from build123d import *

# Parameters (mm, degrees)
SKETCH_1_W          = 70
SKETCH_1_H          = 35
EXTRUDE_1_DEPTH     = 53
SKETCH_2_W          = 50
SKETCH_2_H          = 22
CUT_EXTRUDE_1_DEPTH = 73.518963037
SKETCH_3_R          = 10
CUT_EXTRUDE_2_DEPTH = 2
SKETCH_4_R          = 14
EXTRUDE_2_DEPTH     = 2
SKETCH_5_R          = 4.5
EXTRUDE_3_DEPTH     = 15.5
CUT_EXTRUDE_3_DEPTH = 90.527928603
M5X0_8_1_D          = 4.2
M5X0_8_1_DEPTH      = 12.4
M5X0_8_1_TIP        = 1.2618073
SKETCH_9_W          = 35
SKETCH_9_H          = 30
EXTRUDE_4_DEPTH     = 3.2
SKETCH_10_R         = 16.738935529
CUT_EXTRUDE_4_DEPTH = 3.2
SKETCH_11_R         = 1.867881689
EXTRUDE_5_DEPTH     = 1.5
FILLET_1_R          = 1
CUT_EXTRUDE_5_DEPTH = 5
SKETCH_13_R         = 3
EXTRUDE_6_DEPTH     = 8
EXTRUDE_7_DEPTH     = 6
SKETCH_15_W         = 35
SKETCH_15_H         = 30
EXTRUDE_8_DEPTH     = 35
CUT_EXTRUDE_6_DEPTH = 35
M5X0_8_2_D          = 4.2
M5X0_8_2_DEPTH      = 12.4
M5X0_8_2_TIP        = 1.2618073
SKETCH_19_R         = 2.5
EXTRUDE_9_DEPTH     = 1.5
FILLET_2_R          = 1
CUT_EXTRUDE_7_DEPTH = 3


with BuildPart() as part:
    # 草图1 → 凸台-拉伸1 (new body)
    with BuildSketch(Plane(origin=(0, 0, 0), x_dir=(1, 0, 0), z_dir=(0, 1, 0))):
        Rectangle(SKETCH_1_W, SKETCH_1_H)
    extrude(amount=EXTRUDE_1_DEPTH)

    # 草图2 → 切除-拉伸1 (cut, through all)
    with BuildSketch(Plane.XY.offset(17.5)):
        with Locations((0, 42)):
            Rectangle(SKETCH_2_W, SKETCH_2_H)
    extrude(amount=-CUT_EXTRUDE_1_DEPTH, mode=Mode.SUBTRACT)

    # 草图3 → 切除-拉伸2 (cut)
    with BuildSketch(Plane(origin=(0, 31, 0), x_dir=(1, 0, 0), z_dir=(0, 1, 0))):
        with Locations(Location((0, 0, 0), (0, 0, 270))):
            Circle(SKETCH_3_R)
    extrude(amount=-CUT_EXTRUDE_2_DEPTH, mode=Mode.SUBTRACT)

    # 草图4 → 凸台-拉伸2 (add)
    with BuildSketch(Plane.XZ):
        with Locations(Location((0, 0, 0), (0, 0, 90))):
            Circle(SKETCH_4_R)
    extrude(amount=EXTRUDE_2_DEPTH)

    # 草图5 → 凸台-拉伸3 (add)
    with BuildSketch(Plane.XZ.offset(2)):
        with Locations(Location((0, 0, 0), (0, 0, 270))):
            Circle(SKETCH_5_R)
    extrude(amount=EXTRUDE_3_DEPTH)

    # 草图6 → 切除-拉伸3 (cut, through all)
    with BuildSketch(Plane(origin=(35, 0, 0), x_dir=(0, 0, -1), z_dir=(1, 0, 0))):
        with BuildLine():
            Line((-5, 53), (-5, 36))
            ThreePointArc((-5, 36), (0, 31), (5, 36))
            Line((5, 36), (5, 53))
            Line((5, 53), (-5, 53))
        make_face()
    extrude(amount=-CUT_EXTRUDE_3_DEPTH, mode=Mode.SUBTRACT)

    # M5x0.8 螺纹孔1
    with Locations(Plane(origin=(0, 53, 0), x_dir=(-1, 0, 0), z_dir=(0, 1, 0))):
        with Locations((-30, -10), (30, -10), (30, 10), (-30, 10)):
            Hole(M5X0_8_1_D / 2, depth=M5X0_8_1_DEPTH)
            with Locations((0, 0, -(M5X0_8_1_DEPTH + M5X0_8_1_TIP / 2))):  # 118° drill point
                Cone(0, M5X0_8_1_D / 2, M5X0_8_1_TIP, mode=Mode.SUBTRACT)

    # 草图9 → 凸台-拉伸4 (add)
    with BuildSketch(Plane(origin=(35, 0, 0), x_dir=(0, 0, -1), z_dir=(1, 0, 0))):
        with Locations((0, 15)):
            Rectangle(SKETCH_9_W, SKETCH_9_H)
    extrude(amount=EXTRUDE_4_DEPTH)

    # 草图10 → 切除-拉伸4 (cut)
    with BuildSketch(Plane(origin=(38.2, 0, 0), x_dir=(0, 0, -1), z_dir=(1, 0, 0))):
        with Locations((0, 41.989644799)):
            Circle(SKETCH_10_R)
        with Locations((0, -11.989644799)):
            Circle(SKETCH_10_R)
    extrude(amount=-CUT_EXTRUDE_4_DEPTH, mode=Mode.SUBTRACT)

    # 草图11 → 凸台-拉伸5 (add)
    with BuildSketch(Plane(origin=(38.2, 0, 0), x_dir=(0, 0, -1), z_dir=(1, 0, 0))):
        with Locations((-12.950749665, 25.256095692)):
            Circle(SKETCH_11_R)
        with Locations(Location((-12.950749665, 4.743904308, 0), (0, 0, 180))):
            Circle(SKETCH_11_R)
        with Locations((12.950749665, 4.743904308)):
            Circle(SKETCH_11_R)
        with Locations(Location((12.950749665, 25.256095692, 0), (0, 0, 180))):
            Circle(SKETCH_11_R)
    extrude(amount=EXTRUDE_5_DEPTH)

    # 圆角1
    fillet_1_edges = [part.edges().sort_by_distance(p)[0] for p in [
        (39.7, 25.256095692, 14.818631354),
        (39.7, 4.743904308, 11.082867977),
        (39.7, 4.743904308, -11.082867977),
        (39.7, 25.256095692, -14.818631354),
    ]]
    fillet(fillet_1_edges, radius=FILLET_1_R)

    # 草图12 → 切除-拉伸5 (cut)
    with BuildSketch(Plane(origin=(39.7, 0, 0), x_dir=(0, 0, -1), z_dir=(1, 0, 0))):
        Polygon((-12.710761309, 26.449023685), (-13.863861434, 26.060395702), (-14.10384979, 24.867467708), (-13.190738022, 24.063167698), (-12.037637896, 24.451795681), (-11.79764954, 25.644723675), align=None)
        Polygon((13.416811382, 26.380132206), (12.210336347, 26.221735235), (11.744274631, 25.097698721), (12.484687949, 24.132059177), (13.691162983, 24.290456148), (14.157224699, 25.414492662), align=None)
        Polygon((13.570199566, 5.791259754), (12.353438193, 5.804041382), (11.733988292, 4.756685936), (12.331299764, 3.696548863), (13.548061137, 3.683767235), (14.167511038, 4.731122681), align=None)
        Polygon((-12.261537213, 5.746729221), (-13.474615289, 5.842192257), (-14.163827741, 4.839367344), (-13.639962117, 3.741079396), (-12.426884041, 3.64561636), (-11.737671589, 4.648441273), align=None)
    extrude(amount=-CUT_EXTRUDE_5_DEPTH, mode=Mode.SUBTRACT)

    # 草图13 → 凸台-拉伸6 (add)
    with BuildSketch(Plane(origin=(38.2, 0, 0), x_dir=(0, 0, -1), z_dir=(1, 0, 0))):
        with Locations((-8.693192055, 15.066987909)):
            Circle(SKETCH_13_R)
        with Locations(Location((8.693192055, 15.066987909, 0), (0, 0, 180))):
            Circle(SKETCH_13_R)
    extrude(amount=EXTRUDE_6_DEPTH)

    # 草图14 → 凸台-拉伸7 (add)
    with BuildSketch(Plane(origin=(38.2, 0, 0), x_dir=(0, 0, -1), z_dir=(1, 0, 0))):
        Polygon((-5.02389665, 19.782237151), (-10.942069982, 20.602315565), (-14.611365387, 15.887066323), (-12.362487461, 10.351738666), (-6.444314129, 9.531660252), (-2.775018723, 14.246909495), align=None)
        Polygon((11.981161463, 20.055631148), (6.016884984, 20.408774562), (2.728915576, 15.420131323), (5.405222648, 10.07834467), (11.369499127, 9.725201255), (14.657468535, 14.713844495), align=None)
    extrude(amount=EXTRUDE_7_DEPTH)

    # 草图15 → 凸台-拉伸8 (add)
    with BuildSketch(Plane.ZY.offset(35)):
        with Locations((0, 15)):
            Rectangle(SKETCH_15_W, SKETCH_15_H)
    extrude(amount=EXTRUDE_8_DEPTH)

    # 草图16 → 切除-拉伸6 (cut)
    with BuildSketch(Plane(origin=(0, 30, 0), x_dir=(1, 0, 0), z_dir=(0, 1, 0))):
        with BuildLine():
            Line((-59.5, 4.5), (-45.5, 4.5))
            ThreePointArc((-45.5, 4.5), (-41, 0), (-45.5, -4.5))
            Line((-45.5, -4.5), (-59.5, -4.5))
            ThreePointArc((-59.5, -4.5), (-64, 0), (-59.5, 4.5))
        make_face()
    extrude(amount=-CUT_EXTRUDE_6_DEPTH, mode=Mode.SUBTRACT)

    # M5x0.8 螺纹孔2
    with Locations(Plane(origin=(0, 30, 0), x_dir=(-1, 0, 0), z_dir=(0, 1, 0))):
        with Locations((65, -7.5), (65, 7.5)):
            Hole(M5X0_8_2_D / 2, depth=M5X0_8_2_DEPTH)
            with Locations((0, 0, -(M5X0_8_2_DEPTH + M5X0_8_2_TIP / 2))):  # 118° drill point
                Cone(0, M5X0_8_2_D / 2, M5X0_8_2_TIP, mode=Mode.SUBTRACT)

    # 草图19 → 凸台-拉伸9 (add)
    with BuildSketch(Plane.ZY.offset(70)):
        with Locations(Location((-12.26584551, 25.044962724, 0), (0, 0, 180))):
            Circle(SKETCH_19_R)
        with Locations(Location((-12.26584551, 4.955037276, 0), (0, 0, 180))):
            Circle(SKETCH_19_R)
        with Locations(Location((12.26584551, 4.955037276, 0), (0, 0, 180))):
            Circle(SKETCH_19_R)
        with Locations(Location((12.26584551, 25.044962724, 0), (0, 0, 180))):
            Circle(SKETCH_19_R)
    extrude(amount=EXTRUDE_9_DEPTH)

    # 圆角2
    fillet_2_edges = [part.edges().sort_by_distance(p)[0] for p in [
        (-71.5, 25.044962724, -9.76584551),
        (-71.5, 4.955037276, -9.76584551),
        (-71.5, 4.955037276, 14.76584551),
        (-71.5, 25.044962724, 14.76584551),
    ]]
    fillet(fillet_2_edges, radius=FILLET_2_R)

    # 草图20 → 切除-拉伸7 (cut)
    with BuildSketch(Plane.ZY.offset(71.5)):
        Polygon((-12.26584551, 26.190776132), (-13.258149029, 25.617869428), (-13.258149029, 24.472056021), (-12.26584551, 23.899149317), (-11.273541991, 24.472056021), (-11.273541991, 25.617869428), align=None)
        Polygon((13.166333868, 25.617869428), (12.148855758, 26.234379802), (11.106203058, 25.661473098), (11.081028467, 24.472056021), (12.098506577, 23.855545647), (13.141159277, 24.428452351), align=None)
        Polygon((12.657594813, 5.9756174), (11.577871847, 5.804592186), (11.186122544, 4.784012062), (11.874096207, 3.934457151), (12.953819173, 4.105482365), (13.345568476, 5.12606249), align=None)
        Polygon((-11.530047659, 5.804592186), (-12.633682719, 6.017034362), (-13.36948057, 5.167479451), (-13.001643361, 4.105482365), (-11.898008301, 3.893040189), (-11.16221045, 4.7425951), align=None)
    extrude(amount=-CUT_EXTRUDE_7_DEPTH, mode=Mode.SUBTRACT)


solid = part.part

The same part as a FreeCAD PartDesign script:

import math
import FreeCAD as App
import Part
import Sketcher
from FreeCAD import Vector
Q = App.Units.Quantity


def edges_at(feature, points):
    """Names of the edges that pass closest to the given points."""
    edges = feature.Shape.Edges
    near = lambda p: min(range(len(edges)), key=lambda i: edges[i].distToShape(Part.Vertex(*p))[0])
    return sorted({f"Edge{near(p) + 1}" for p in points})


def add_polygon(sketch, points):
    """Adds a closed chain of lines whose ends are joined by coincident constraints."""
    first, n = sketch.GeometryCount, len(points)
    for a, b in zip(points, points[1:] + points[:1]):
        sketch.addGeometry(Part.LineSegment(App.Vector(*a, 0), App.Vector(*b, 0)), False)
    for i in range(n):
        sketch.addConstraint(Sketcher.Constraint("Coincident", first + i, 2, first + (i + 1) % n, 1))

doc = App.newDocument("Part")
body = doc.addObject("PartDesign::Body", "Body")

# Sketch on XZ plane
sketch1 = body.newObject("Sketcher::SketchObject", "Sketch")
sketch1.AttachmentSupport = (doc.getObject("XZ_Plane"), [""])
sketch1.MapMode = "FlatFace"
add_polygon(sketch1, [(-35, -17.5), (-35, 17.5), (35, 17.5), (35, -17.5)])  # lines 0-3
sketch1.addConstraint(Sketcher.Constraint("Vertical", 0))
sketch1.addConstraint(Sketcher.Constraint("Horizontal", 1))
sketch1.addConstraint(Sketcher.Constraint("Vertical", 2))
sketch1.addConstraint(Sketcher.Constraint("Horizontal", 3))
sketch1.addConstraint(Sketcher.Constraint("Symmetric", 0, 2, 2, 2, -1, 1))
sketch1.addConstraint(Sketcher.Constraint("DistanceX", 1, 1, 1, 2, 70.0))
sketch1.addConstraint(Sketcher.Constraint("DistanceY", 0, 1, 0, 2, 35.0))
pad1 = body.newObject("PartDesign::Pad", "Pad")
pad1.Profile = sketch1
pad1.Length = 53
pad1.Reversed = True

# Sketch on XY plane
sketch2 = body.newObject("Sketcher::SketchObject", "Sketch001")
sketch2.AttachmentSupport = (doc.getObject("XY_Plane"), [""])
sketch2.MapMode = "FlatFace"
sketch2.AttachmentOffset = App.Placement(Vector(0, 0, 17.5), App.Rotation())
add_polygon(sketch2, [(-25, 53), (-25, 31), (25, 31), (25, 53)])  # lines 0-3
sketch2.addConstraint(Sketcher.Constraint("Vertical", 0))
sketch2.addConstraint(Sketcher.Constraint("Horizontal", 1))
sketch2.addConstraint(Sketcher.Constraint("Vertical", 2))
sketch2.addConstraint(Sketcher.Constraint("Horizontal", 3))
sketch2.addConstraint(Sketcher.Constraint("DistanceX", 1, 1, 1, 2, 50.0))
sketch2.addConstraint(Sketcher.Constraint("DistanceY", 0, 2, 0, 1, 22.0))
sketch2.addConstraint(Sketcher.Constraint("DistanceX", 0, 2, -1, 1, 25.0))
sketch2.addConstraint(Sketcher.Constraint("DistanceY", -1, 1, 0, 2, 31.0))
pocket1 = body.newObject("PartDesign::Pocket", "Pocket")
pocket1.Profile = sketch2
pocket1.Type = "ThroughAll"

# Sketch on XZ plane
sketch3 = body.newObject("Sketcher::SketchObject", "Sketch002")
sketch3.AttachmentSupport = (doc.getObject("XZ_Plane"), [""])
sketch3.MapMode = "FlatFace"
sketch3.AttachmentOffset = App.Placement(Vector(0, 0, -31), App.Rotation())
sketch3.addGeometry(Part.Circle(Vector(0, 0, 0), Vector(0, 0, 1), 10), False)
sketch3.addConstraint(Sketcher.Constraint("Coincident", 0, 3, -1, 1))
sketch3.addConstraint(Sketcher.Constraint("Diameter", 0, 20.0))
pocket2 = body.newObject("PartDesign::Pocket", "Pocket001")
pocket2.Profile = sketch3
pocket2.Length = 2
pocket2.Reversed = True

# Sketch on XZ plane
sketch4 = body.newObject("Sketcher::SketchObject", "Sketch003")
sketch4.AttachmentSupport = (doc.getObject("XZ_Plane"), [""])
sketch4.MapMode = "FlatFace"
sketch4.addGeometry(Part.Circle(Vector(0, 0, 0), Vector(0, 0, 1), 14), False)
sketch4.addConstraint(Sketcher.Constraint("Coincident", 0, 3, -1, 1))
sketch4.addConstraint(Sketcher.Constraint("Diameter", 0, 28.0))
pad2 = body.newObject("PartDesign::Pad", "Pad001")
pad2.Profile = sketch4
pad2.Length = 2

# Sketch on XZ plane
sketch5 = body.newObject("Sketcher::SketchObject", "Sketch004")
sketch5.AttachmentSupport = (doc.getObject("XZ_Plane"), [""])
sketch5.MapMode = "FlatFace"
sketch5.AttachmentOffset = App.Placement(Vector(0, 0, 2), App.Rotation())
sketch5.addGeometry(Part.Circle(Vector(0, 0, 0), Vector(0, 0, 1), 4.5), False)
sketch5.addConstraint(Sketcher.Constraint("Coincident", 0, 3, -1, 1))
sketch5.addConstraint(Sketcher.Constraint("Diameter", 0, 9.0))
pad3 = body.newObject("PartDesign::Pad", "Pad002")
pad3.Profile = sketch5
pad3.Length = 15.5

# Sketch on YZ plane
sketch6 = body.newObject("Sketcher::SketchObject", "Sketch005")
sketch6.AttachmentSupport = (doc.getObject("YZ_Plane"), [""])
sketch6.MapMode = "FlatFace"
sketch6.AttachmentOffset = App.Placement(Vector(0, 0, 35), App.Rotation())
sketch6.addGeometry(Part.LineSegment(Vector(53, 5, 0), Vector(36, 5, 0)), False)
sketch6.addGeometry(Part.ArcOfCircle(Part.Circle(Vector(36, 0, 0), Vector(0, 0, 1), 5), math.radians(90), math.radians(270)), False)
sketch6.addGeometry(Part.LineSegment(Vector(36, -5, 0), Vector(53, -5, 0)), False)
sketch6.addGeometry(Part.LineSegment(Vector(53, -5, 0), Vector(53, 5, 0)), False)
sketch6.addConstraint(Sketcher.Constraint("Tangent", 0, 2, 1, 1))
sketch6.addConstraint(Sketcher.Constraint("Tangent", 1, 2, 2, 1))
sketch6.addConstraint(Sketcher.Constraint("Coincident", 2, 2, 3, 1))
sketch6.addConstraint(Sketcher.Constraint("Coincident", 3, 2, 0, 1))
sketch6.addConstraint(Sketcher.Constraint("Horizontal", 0))
sketch6.addConstraint(Sketcher.Constraint("Horizontal", 2))
sketch6.addConstraint(Sketcher.Constraint("Vertical", 3))
sketch6.addConstraint(Sketcher.Constraint("PointOnObject", 1, 3, -1))
sketch6.addConstraint(Sketcher.Constraint("Radius", 1, 5.0))
sketch6.addConstraint(Sketcher.Constraint("DistanceX", 0, 2, 0, 1, 17.0))
sketch6.addConstraint(Sketcher.Constraint("DistanceX", -1, 1, 1, 3, 36.0))
pocket3 = body.newObject("PartDesign::Pocket", "Pocket002")
pocket3.Profile = sketch6
pocket3.Type = "ThroughAll"

# Sketch on XZ plane
sketch7 = body.newObject("Sketcher::SketchObject", "Sketch006")
sketch7.AttachmentSupport = (doc.getObject("XZ_Plane"), [""])
sketch7.MapMode = "FlatFace"
sketch7.AttachmentOffset = App.Placement(Vector(0, 0, -53), App.Rotation())
sketch7.addGeometry(Part.Circle(Vector(30, -10, 0), Vector(0, 0, 1), 2.1), False)
sketch7.addGeometry(Part.Circle(Vector(-30, -10, 0), Vector(0, 0, 1), 2.1), False)
sketch7.addGeometry(Part.Circle(Vector(-30, 10, 0), Vector(0, 0, 1), 2.1), False)
sketch7.addGeometry(Part.Circle(Vector(30, 10, 0), Vector(0, 0, 1), 2.1), False)
sketch7.addConstraint(Sketcher.Constraint("Equal", 0, 1))
sketch7.addConstraint(Sketcher.Constraint("Equal", 1, 2))
sketch7.addConstraint(Sketcher.Constraint("Equal", 2, 3))
sketch7.addConstraint(Sketcher.Constraint("Symmetric", 0, 3, 2, 3, -1, 1))
sketch7.addConstraint(Sketcher.Constraint("Symmetric", 1, 3, 3, 3, -1, 1))
sketch7.addConstraint(Sketcher.Constraint("Symmetric", 0, 3, 1, 3, -2))
sketch7.addConstraint(Sketcher.Constraint("Diameter", 0, 4.2))
sketch7.addConstraint(Sketcher.Constraint("DistanceX", -1, 1, 0, 3, 30.0))
sketch7.addConstraint(Sketcher.Constraint("DistanceY", 0, 3, -1, 1, 10.0))
doc.recompute()
hole = body.newObject("PartDesign::Hole", "Hole")
hole.Profile = sketch7
hole.ThreadType = "None"
hole.Diameter = 4.2
hole.DepthType = "Dimension"
hole.Depth = 12.4
hole.DrillPoint = "Angled"
hole.DrillPointAngle = 118
hole.Reversed = True

# Sketch on YZ plane
sketch8 = body.newObject("Sketcher::SketchObject", "Sketch007")
sketch8.AttachmentSupport = (doc.getObject("YZ_Plane"), [""])
sketch8.MapMode = "FlatFace"
sketch8.AttachmentOffset = App.Placement(Vector(0, 0, 35), App.Rotation())
add_polygon(sketch8, [(30, 17.5), (0, 17.5), (0, -17.5), (30, -17.5)])  # lines 0-3
sketch8.addConstraint(Sketcher.Constraint("Horizontal", 0))
sketch8.addConstraint(Sketcher.Constraint("Vertical", 1))
sketch8.addConstraint(Sketcher.Constraint("Horizontal", 2))
sketch8.addConstraint(Sketcher.Constraint("Vertical", 3))
sketch8.addConstraint(Sketcher.Constraint("Symmetric", 0, 2, 1, 2, -1, 1))
sketch8.addConstraint(Sketcher.Constraint("DistanceX", 0, 2, 0, 1, 30.0))
sketch8.addConstraint(Sketcher.Constraint("DistanceY", 1, 2, 1, 1, 35.0))
pad4 = body.newObject("PartDesign::Pad", "Pad003")
pad4.Profile = sketch8
pad4.Length = 3.2

# Sketch on YZ plane
sketch9 = body.newObject("Sketcher::SketchObject", "Sketch008")
sketch9.AttachmentSupport = (doc.getObject("YZ_Plane"), [""])
sketch9.MapMode = "FlatFace"
sketch9.AttachmentOffset = App.Placement(Vector(0, 0, 38.2), App.Rotation())
sketch9.addGeometry(Part.Circle(Vector(41.989645, 0, 0), Vector(0, 0, 1), 16.738936), False)
sketch9.addGeometry(Part.Circle(Vector(-11.989645, 0, 0), Vector(0, 0, 1), 16.738936), False)
sketch9.addConstraint(Sketcher.Constraint("Equal", 0, 1))
sketch9.addConstraint(Sketcher.Constraint("PointOnObject", 0, 3, -1))
sketch9.addConstraint(Sketcher.Constraint("PointOnObject", 1, 3, -1))
sketch9.addConstraint(Sketcher.Constraint("Diameter", 0, 33.477871))
sketch9.addConstraint(Sketcher.Constraint("DistanceX", 1, 3, 0, 3, 53.97929))
sketch9.addConstraint(Sketcher.Constraint("DistanceX", -1, 1, 0, 3, 41.989645))
pocket4 = body.newObject("PartDesign::Pocket", "Pocket003")
pocket4.Profile = sketch9
pocket4.Length = 3.2

# Sketch on YZ plane
sketch10 = body.newObject("Sketcher::SketchObject", "Sketch009")
sketch10.AttachmentSupport = (doc.getObject("YZ_Plane"), [""])
sketch10.MapMode = "FlatFace"
sketch10.AttachmentOffset = App.Placement(Vector(0, 0, 38.2), App.Rotation())
sketch10.addGeometry(Part.Circle(Vector(25.256096, 12.95075, 0), Vector(0, 0, 1), 1.867882), False)
sketch10.addGeometry(Part.Circle(Vector(4.743904, 12.95075, 0), Vector(0, 0, 1), 1.867882), False)
sketch10.addGeometry(Part.Circle(Vector(4.743904, -12.95075, 0), Vector(0, 0, 1), 1.867882), False)
sketch10.addGeometry(Part.Circle(Vector(25.256096, -12.95075, 0), Vector(0, 0, 1), 1.867882), False)
sketch10.addConstraint(Sketcher.Constraint("Equal", 0, 1))
sketch10.addConstraint(Sketcher.Constraint("Equal", 1, 2))
sketch10.addConstraint(Sketcher.Constraint("Equal", 2, 3))
sketch10.addConstraint(Sketcher.Constraint("Symmetric", 1, 3, 2, 3, -1))
sketch10.addConstraint(Sketcher.Constraint("Symmetric", 0, 3, 3, 3, -1))
sketch10.addConstraint(Sketcher.Constraint("Horizontal", 0, 3, 1, 3))
sketch10.addConstraint(Sketcher.Constraint("Diameter", 0, 3.735763))
sketch10.addConstraint(Sketcher.Constraint("DistanceY", 2, 3, 1, 3, 25.901499))
sketch10.addConstraint(Sketcher.Constraint("DistanceX", 1, 3, 0, 3, 20.512191))
sketch10.addConstraint(Sketcher.Constraint("DistanceX", -1, 1, 0, 3, 25.256096))
pad5 = body.newObject("PartDesign::Pad", "Pad004")
pad5.Profile = sketch10
pad5.Length = 1.5
doc.recompute()

fillet = body.newObject("PartDesign::Fillet", "Fillet")
fillet.Base = (pad5, edges_at(pad5, [
    (39.7, 25.256, 14.819),
    (39.7, 4.744, 11.083),
    (39.7, 4.744, -11.083),
    (39.7, 25.256, -14.819),
]))
fillet.Radius = 1

# Sketch on YZ plane
sketch11 = body.newObject("Sketcher::SketchObject", "Sketch010")
sketch11.AttachmentSupport = (doc.getObject("YZ_Plane"), [""])
sketch11.MapMode = "FlatFace"
sketch11.AttachmentOffset = App.Placement(Vector(0, 0, 39.7), App.Rotation())
add_polygon(sketch11, [(26.449024, 12.710761), (26.060396, 13.863861), (24.867468, 14.10385), (24.063168, 13.190738), (24.451796, 12.037638), (25.644724, 11.79765)])  # lines 0-5
add_polygon(sketch11, [(26.380132, -13.416811), (26.221735, -12.210336), (25.097699, -11.744275), (24.132059, -12.484688), (24.290456, -13.691163), (25.414493, -14.157225)])  # lines 6-11
add_polygon(sketch11, [(5.79126, -13.5702), (5.804041, -12.353438), (4.756686, -11.733988), (3.696549, -12.3313), (3.683767, -13.548061), (4.731123, -14.167511)])  # lines 12-17
add_polygon(sketch11, [(5.746729, 12.261537), (5.842192, 13.474615), (4.839367, 14.163828), (3.741079, 13.639962), (3.645616, 12.426884), (4.648441, 11.737672)])  # lines 18-23
sketch11.addConstraint(Sketcher.Constraint("Parallel", 0, 3))
sketch11.addConstraint(Sketcher.Constraint("Parallel", 1, 4))
sketch11.addConstraint(Sketcher.Constraint("Parallel", 2, 5))
sketch11.addConstraint(Sketcher.Constraint("Parallel", 6, 9))
sketch11.addConstraint(Sketcher.Constraint("Parallel", 7, 10))
sketch11.addConstraint(Sketcher.Constraint("Parallel", 8, 11))
sketch11.addConstraint(Sketcher.Constraint("Parallel", 12, 15))
sketch11.addConstraint(Sketcher.Constraint("Parallel", 13, 16))
sketch11.addConstraint(Sketcher.Constraint("Parallel", 14, 17))
sketch11.addConstraint(Sketcher.Constraint("Parallel", 18, 21))
sketch11.addConstraint(Sketcher.Constraint("Parallel", 19, 22))
sketch11.addConstraint(Sketcher.Constraint("Parallel", 20, 23))
sketch11.addConstraint(Sketcher.Constraint("Equal", 0, 1))
sketch11.addConstraint(Sketcher.Constraint("Equal", 1, 2))
sketch11.addConstraint(Sketcher.Constraint("Equal", 2, 3))
sketch11.addConstraint(Sketcher.Constraint("Equal", 5, 6))
sketch11.addConstraint(Sketcher.Constraint("Equal", 6, 7))
sketch11.addConstraint(Sketcher.Constraint("Equal", 7, 8))
sketch11.addConstraint(Sketcher.Constraint("Equal", 8, 9))
sketch11.addConstraint(Sketcher.Constraint("Equal", 11, 12))
sketch11.addConstraint(Sketcher.Constraint("Equal", 12, 13))
sketch11.addConstraint(Sketcher.Constraint("Equal", 13, 14))
sketch11.addConstraint(Sketcher.Constraint("Equal", 14, 15))
sketch11.addConstraint(Sketcher.Constraint("Equal", 17, 18))
sketch11.addConstraint(Sketcher.Constraint("Equal", 18, 19))
sketch11.addConstraint(Sketcher.Constraint("Equal", 19, 20))
sketch11.addConstraint(Sketcher.Constraint("Equal", 20, 21))
sketch11.addConstraint(Sketcher.Constraint("DistanceX", -1, 1, 7, 2, 25.097699))
sketch11.addConstraint(Sketcher.Constraint("DistanceY", 14, 2, -1, 1, 12.3313))
sketch11.addConstraint(Sketcher.Constraint("DistanceY", 17, 2, -1, 1, 13.5702))
sketch11.addConstraint(Sketcher.Constraint("DistanceX", 2, 2, 1, 2, 0.8043))
sketch11.addConstraint(Sketcher.Constraint("DistanceY", 3, 2, 2, 2, 1.1531))
sketch11.addConstraint(Sketcher.Constraint("DistanceX", 3, 2, 0, 2, 1.6086))
sketch11.addConstraint(Sketcher.Constraint("DistanceY", 4, 2, 1, 2, 2.3062))
sketch11.addConstraint(Sketcher.Constraint("DistanceY", 9, 2, 3, 2, 25.728801))
sketch11.addConstraint(Sketcher.Constraint("DistanceY", 12, 2, 6, 2, 0.143102))
sketch11.addConstraint(Sketcher.Constraint("DistanceY", 8, 2, 13, 2, 0.7507))
sketch11.addConstraint(Sketcher.Constraint("DistanceY", 9, 2, 15, 2, 0.143102))
sketch11.addConstraint(Sketcher.Constraint("DistanceX", 19, 2, 2, 2, 19.2238))
sketch11.addConstraint(Sketcher.Constraint("DistanceY", -1, 1, 0, 2, 13.863861))
sketch11.addConstraint(Sketcher.Constraint("DistanceX", -1, 1, 8, 2, 24.132059))
sketch11.addConstraint(Sketcher.Constraint("DistanceY", 11, 2, -1, 1, 13.416811))
sketch11.addConstraint(Sketcher.Constraint("DistanceX", -1, 1, 12, 2, 5.804041))
sketch11.addConstraint(Sketcher.Constraint("DistanceX", -1, 1, 20, 2, 3.741079))
sketch11.addConstraint(Sketcher.Constraint("DistanceX", -1, 1, 22, 2, 4.648441))
sketch11.addConstraint(Sketcher.Constraint("DistanceY", -1, 1, 22, 2, 11.737672))
sketch11.addConstraint(Sketcher.Constraint("DistanceX", -1, 1, 23, 2, 5.746729))
sketch11.addConstraint(Sketcher.Constraint("DistanceX", 18, 2, 4, 2, 19.802531))
pocket5 = body.newObject("PartDesign::Pocket", "Pocket004")
pocket5.Profile = sketch11
pocket5.Length = 5

# Sketch on YZ plane
sketch12 = body.newObject("Sketcher::SketchObject", "Sketch011")
sketch12.AttachmentSupport = (doc.getObject("YZ_Plane"), [""])
sketch12.MapMode = "FlatFace"
sketch12.AttachmentOffset = App.Placement(Vector(0, 0, 38.2), App.Rotation())
sketch12.addGeometry(Part.Circle(Vector(15.066988, 8.693192, 0), Vector(0, 0, 1), 3), False)
sketch12.addGeometry(Part.Circle(Vector(15.066988, -8.693192, 0), Vector(0, 0, 1), 3), False)
sketch12.addConstraint(Sketcher.Constraint("Equal", 0, 1))
sketch12.addConstraint(Sketcher.Constraint("Symmetric", 0, 3, 1, 3, -1))
sketch12.addConstraint(Sketcher.Constraint("Diameter", 0, 6.0))
sketch12.addConstraint(Sketcher.Constraint("DistanceX", -1, 1, 0, 3, 15.066988))
sketch12.addConstraint(Sketcher.Constraint("DistanceY", -1, 1, 0, 3, 8.693192))
pad6 = body.newObject("PartDesign::Pad", "Pad005")
pad6.Profile = sketch12
pad6.Length = 8

# Sketch on YZ plane
sketch13 = body.newObject("Sketcher::SketchObject", "Sketch012")
sketch13.AttachmentSupport = (doc.getObject("YZ_Plane"), [""])
sketch13.MapMode = "FlatFace"
sketch13.AttachmentOffset = App.Placement(Vector(0, 0, 38.2), App.Rotation())
add_polygon(sketch13, [(19.782237, 5.023897), (20.602316, 10.94207), (15.887066, 14.611365), (10.351739, 12.362487), (9.53166, 6.444314), (14.246909, 2.775019)])  # lines 0-5
add_polygon(sketch13, [(20.055631, -11.981161), (20.408775, -6.016885), (15.420131, -2.728916), (10.078345, -5.405223), (9.725201, -11.369499), (14.713844, -14.657469)])  # lines 6-11
sketch13.addConstraint(Sketcher.Constraint("Parallel", 0, 3))
sketch13.addConstraint(Sketcher.Constraint("Parallel", 1, 4))
sketch13.addConstraint(Sketcher.Constraint("Parallel", 2, 5))
sketch13.addConstraint(Sketcher.Constraint("Parallel", 6, 9))
sketch13.addConstraint(Sketcher.Constraint("Parallel", 7, 10))
sketch13.addConstraint(Sketcher.Constraint("Parallel", 8, 11))
sketch13.addConstraint(Sketcher.Constraint("Equal", 0, 1))
sketch13.addConstraint(Sketcher.Constraint("Equal", 1, 2))
sketch13.addConstraint(Sketcher.Constraint("Equal", 2, 3))
sketch13.addConstraint(Sketcher.Constraint("Equal", 5, 6))
sketch13.addConstraint(Sketcher.Constraint("Equal", 6, 7))
sketch13.addConstraint(Sketcher.Constraint("Equal", 7, 8))
sketch13.addConstraint(Sketcher.Constraint("Equal", 8, 9))
sketch13.addConstraint(Sketcher.Constraint("DistanceX", -1, 1, 9, 2, 9.725201))
sketch13.addConstraint(Sketcher.Constraint("DistanceY", 9, 2, -1, 1, 11.369499))
sketch13.addConstraint(Sketcher.Constraint("DistanceX", 2, 2, 5, 2, 9.430498))
sketch13.addConstraint(Sketcher.Constraint("DistanceY", 6, 2, 3, 2, 12.461199))
sketch13.addConstraint(Sketcher.Constraint("DistanceX", 8, 2, 10, 2, 4.6355))
sketch13.addConstraint(Sketcher.Constraint("DistanceY", -1, 1, 0, 2, 10.94207))
sketch13.addConstraint(Sketcher.Constraint("DistanceX", -1, 1, 2, 2, 10.351739))
sketch13.addConstraint(Sketcher.Constraint("DistanceX", -1, 1, 3, 2, 9.53166))
sketch13.addConstraint(Sketcher.Constraint("DistanceX", -1, 1, 4, 2, 14.246909))
sketch13.addConstraint(Sketcher.Constraint("DistanceY", -1, 1, 4, 2, 2.775019))
sketch13.addConstraint(Sketcher.Constraint("DistanceX", -1, 1, 7, 2, 15.420131))
pad7 = body.newObject("PartDesign::Pad", "Pad006")
pad7.Profile = sketch13
pad7.Length = 6

# Sketch on YZ plane
sketch14 = body.newObject("Sketcher::SketchObject", "Sketch013")
sketch14.AttachmentSupport = (doc.getObject("YZ_Plane"), [""])
sketch14.MapMode = "FlatFace"
sketch14.AttachmentOffset = App.Placement(Vector(0, 0, -35), App.Rotation())
add_polygon(sketch14, [(30, -17.5), (0, -17.5), (0, 17.5), (30, 17.5)])  # lines 0-3
sketch14.addConstraint(Sketcher.Constraint("Horizontal", 0))
sketch14.addConstraint(Sketcher.Constraint("Vertical", 1))
sketch14.addConstraint(Sketcher.Constraint("Horizontal", 2))
sketch14.addConstraint(Sketcher.Constraint("Vertical", 3))
sketch14.addConstraint(Sketcher.Constraint("Symmetric", 0, 2, 1, 2, -1, 1))
sketch14.addConstraint(Sketcher.Constraint("DistanceX", 0, 2, 0, 1, 30.0))
sketch14.addConstraint(Sketcher.Constraint("DistanceY", 1, 1, 1, 2, 35.0))
pad8 = body.newObject("PartDesign::Pad", "Pad007")
pad8.Profile = sketch14
pad8.Length = 35
pad8.Reversed = True

# Sketch on XZ plane
sketch15 = body.newObject("Sketcher::SketchObject", "Sketch014")
sketch15.AttachmentSupport = (doc.getObject("XZ_Plane"), [""])
sketch15.MapMode = "FlatFace"
sketch15.AttachmentOffset = App.Placement(Vector(0, 0, -30), App.Rotation())
sketch15.addGeometry(Part.LineSegment(Vector(-45.5, -4.5, 0), Vector(-59.5, -4.5, 0)), False)
sketch15.addGeometry(Part.ArcOfCircle(Part.Circle(Vector(-59.5, 0, 0), Vector(0, 0, 1), 4.5), math.radians(90), math.radians(270)), False)
sketch15.addGeometry(Part.LineSegment(Vector(-59.5, 4.5, 0), Vector(-45.5, 4.5, 0)), False)
sketch15.addGeometry(Part.ArcOfCircle(Part.Circle(Vector(-45.5, 0, 0), Vector(0, 0, 1), 4.5), math.radians(-90), math.radians(90)), False)
sketch15.addConstraint(Sketcher.Constraint("Tangent", 0, 2, 1, 2))
sketch15.addConstraint(Sketcher.Constraint("Tangent", 1, 1, 2, 1))
sketch15.addConstraint(Sketcher.Constraint("Tangent", 2, 2, 3, 2))
sketch15.addConstraint(Sketcher.Constraint("Tangent", 3, 1, 0, 1))
sketch15.addConstraint(Sketcher.Constraint("Horizontal", 0))
sketch15.addConstraint(Sketcher.Constraint("Horizontal", 2))
sketch15.addConstraint(Sketcher.Constraint("PointOnObject", 1, 3, -1))
sketch15.addConstraint(Sketcher.Constraint("Radius", 1, 4.5))
sketch15.addConstraint(Sketcher.Constraint("DistanceX", 0, 2, 0, 1, 14.0))
sketch15.addConstraint(Sketcher.Constraint("DistanceX", 1, 3, -1, 1, 59.5))
pocket6 = body.newObject("PartDesign::Pocket", "Pocket005")
pocket6.Profile = sketch15
pocket6.Length = 35
pocket6.Reversed = True

# Sketch on XZ plane
sketch16 = body.newObject("Sketcher::SketchObject", "Sketch015")
sketch16.AttachmentSupport = (doc.getObject("XZ_Plane"), [""])
sketch16.MapMode = "FlatFace"
sketch16.AttachmentOffset = App.Placement(Vector(0, 0, -30), App.Rotation())
sketch16.addGeometry(Part.Circle(Vector(-65, -7.5, 0), Vector(0, 0, 1), 2.1), False)
sketch16.addGeometry(Part.Circle(Vector(-65, 7.5, 0), Vector(0, 0, 1), 2.1), False)
sketch16.addConstraint(Sketcher.Constraint("Equal", 0, 1))
sketch16.addConstraint(Sketcher.Constraint("Symmetric", 0, 3, 1, 3, -1))
sketch16.addConstraint(Sketcher.Constraint("Diameter", 0, 4.2))
sketch16.addConstraint(Sketcher.Constraint("DistanceX", 0, 3, -1, 1, 65.0))
sketch16.addConstraint(Sketcher.Constraint("DistanceY", 0, 3, 1, 3, 15.0))
doc.recompute()
hole2 = body.newObject("PartDesign::Hole", "Hole001")
hole2.Profile = sketch16
hole2.ThreadType = "None"
hole2.Diameter = 4.2
hole2.DepthType = "Dimension"
hole2.Depth = 12.4
hole2.DrillPoint = "Angled"
hole2.DrillPointAngle = 118
hole2.Reversed = True

# Sketch on YZ plane
sketch17 = body.newObject("Sketcher::SketchObject", "Sketch016")
sketch17.AttachmentSupport = (doc.getObject("YZ_Plane"), [""])
sketch17.MapMode = "FlatFace"
sketch17.AttachmentOffset = App.Placement(Vector(0, 0, -70), App.Rotation())
sketch17.addGeometry(Part.Circle(Vector(25.044963, -12.265846, 0), Vector(0, 0, 1), 2.5), False)
sketch17.addGeometry(Part.Circle(Vector(4.955037, -12.265846, 0), Vector(0, 0, 1), 2.5), False)
sketch17.addGeometry(Part.Circle(Vector(4.955037, 12.265846, 0), Vector(0, 0, 1), 2.5), False)
sketch17.addGeometry(Part.Circle(Vector(25.044963, 12.265846, 0), Vector(0, 0, 1), 2.5), False)
sketch17.addConstraint(Sketcher.Constraint("Equal", 0, 1))
sketch17.addConstraint(Sketcher.Constraint("Equal", 1, 2))
sketch17.addConstraint(Sketcher.Constraint("Equal", 2, 3))
sketch17.addConstraint(Sketcher.Constraint("Symmetric", 1, 3, 2, 3, -1))
sketch17.addConstraint(Sketcher.Constraint("Symmetric", 0, 3, 3, 3, -1))
sketch17.addConstraint(Sketcher.Constraint("Horizontal", 0, 3, 1, 3))
sketch17.addConstraint(Sketcher.Constraint("Diameter", 0, 5.0))
sketch17.addConstraint(Sketcher.Constraint("DistanceY", 1, 3, 2, 3, 24.531691))
sketch17.addConstraint(Sketcher.Constraint("DistanceX", -1, 1, 0, 3, 25.044963))
sketch17.addConstraint(Sketcher.Constraint("DistanceX", -1, 1, 1, 3, 4.955037))
pad9 = body.newObject("PartDesign::Pad", "Pad008")
pad9.Profile = sketch17
pad9.Length = 1.5
pad9.Reversed = True
doc.recompute()

fillet2 = body.newObject("PartDesign::Fillet", "Fillet001")
fillet2.Base = (pad9, edges_at(pad9, [
    (-71.5, 25.045, -9.766),
    (-71.5, 4.955, -9.766),
    (-71.5, 4.955, 14.766),
    (-71.5, 25.045, 14.766),
]))
fillet2.Radius = 1

# Sketch on YZ plane
sketch18 = body.newObject("Sketcher::SketchObject", "Sketch017")
sketch18.AttachmentSupport = (doc.getObject("YZ_Plane"), [""])
sketch18.MapMode = "FlatFace"
sketch18.AttachmentOffset = App.Placement(Vector(0, 0, -71.5), App.Rotation())
add_polygon(sketch18, [(26.190776, -12.265846), (25.617869, -13.258149), (24.472056, -13.258149), (23.899149, -12.265846), (24.472056, -11.273542), (25.617869, -11.273542)])  # lines 0-5
add_polygon(sketch18, [(25.617869, 13.166334), (26.23438, 12.148856), (25.661473, 11.106203), (24.472056, 11.081028), (23.855546, 12.098507), (24.428452, 13.141159)])  # lines 6-11
add_polygon(sketch18, [(5.975617, 12.657595), (5.804592, 11.577872), (4.784012, 11.186123), (3.934457, 11.874096), (4.105482, 12.953819), (5.126062, 13.345568)])  # lines 12-17
add_polygon(sketch18, [(5.804592, -11.530048), (6.017034, -12.633683), (5.167479, -13.369481), (4.105482, -13.001643), (3.89304, -11.898008), (4.742595, -11.16221)])  # lines 18-23
sketch18.addConstraint(Sketcher.Constraint("Horizontal", 1))
sketch18.addConstraint(Sketcher.Constraint("Horizontal", 4))
sketch18.addConstraint(Sketcher.Constraint("Parallel", 0, 3))
sketch18.addConstraint(Sketcher.Constraint("Parallel", 2, 5))
sketch18.addConstraint(Sketcher.Constraint("Parallel", 6, 9))
sketch18.addConstraint(Sketcher.Constraint("Parallel", 7, 10))
sketch18.addConstraint(Sketcher.Constraint("Parallel", 8, 11))
sketch18.addConstraint(Sketcher.Constraint("Parallel", 12, 15))
sketch18.addConstraint(Sketcher.Constraint("Parallel", 13, 16))
sketch18.addConstraint(Sketcher.Constraint("Parallel", 14, 17))
sketch18.addConstraint(Sketcher.Constraint("Parallel", 18, 21))
sketch18.addConstraint(Sketcher.Constraint("Parallel", 19, 22))
sketch18.addConstraint(Sketcher.Constraint("Parallel", 20, 23))
sketch18.addConstraint(Sketcher.Constraint("Horizontal", 2, 2, 5, 2))
sketch18.addConstraint(Sketcher.Constraint("Vertical", 1, 2, 3, 2))
sketch18.addConstraint(Sketcher.Constraint("Vertical", 0, 2, 4, 2))
sketch18.addConstraint(Sketcher.Constraint("Vertical", 3, 2, 8, 2))
sketch18.addConstraint(Sketcher.Constraint("Vertical", 4, 2, 11, 2))
sketch18.addConstraint(Sketcher.Constraint("Vertical", 15, 2, 20, 2))
sketch18.addConstraint(Sketcher.Constraint("Vertical", 12, 2, 23, 2))
sketch18.addConstraint(Sketcher.Constraint("Equal", 6, 7))
sketch18.addConstraint(Sketcher.Constraint("Equal", 7, 8))
sketch18.addConstraint(Sketcher.Constraint("Equal", 8, 9))
sketch18.addConstraint(Sketcher.Constraint("Equal", 12, 13))
sketch18.addConstraint(Sketcher.Constraint("Equal", 13, 14))
sketch18.addConstraint(Sketcher.Constraint("Equal", 14, 15))
sketch18.addConstraint(Sketcher.Constraint("Equal", 18, 19))
sketch18.addConstraint(Sketcher.Constraint("Equal", 19, 20))
sketch18.addConstraint(Sketcher.Constraint("Equal", 20, 21))
sketch18.addConstraint(Sketcher.Constraint("Angle", 0, Q("-120 deg")))
sketch18.addConstraint(Sketcher.Constraint("DistanceY", 5, 2, 6, 2, 24.414701))
sketch18.addConstraint(Sketcher.Constraint("DistanceY", 3, 2, 10, 2, 24.414701))
sketch18.addConstraint(Sketcher.Constraint("DistanceX", 14, 2, 8, 2, 20.537599))
sketch18.addConstraint(Sketcher.Constraint("DistanceY", 14, 2, 17, 2, 0.783499))
sketch18.addConstraint(Sketcher.Constraint("DistanceY", 20, 2, 3, 2, 1.728101))
sketch18.addConstraint(Sketcher.Constraint("DistanceX", 1, 2, 1, 1, 1.145813))
sketch18.addConstraint(Sketcher.Constraint("DistanceX", -1, 1, 0, 2, 25.617869))
sketch18.addConstraint(Sketcher.Constraint("DistanceY", 0, 2, -1, 1, 13.258149))
sketch18.addConstraint(Sketcher.Constraint("DistanceX", -1, 1, 2, 2, 23.899149))
sketch18.addConstraint(Sketcher.Constraint("DistanceX", -1, 1, 6, 2, 26.23438))
sketch18.addConstraint(Sketcher.Constraint("DistanceY", -1, 1, 8, 2, 11.081028))
sketch18.addConstraint(Sketcher.Constraint("DistanceY", -1, 1, 12, 2, 11.577872))
sketch18.addConstraint(Sketcher.Constraint("DistanceY", -1, 1, 15, 2, 12.953819))
sketch18.addConstraint(Sketcher.Constraint("DistanceY", -1, 1, 16, 2, 13.345568))
sketch18.addConstraint(Sketcher.Constraint("DistanceX", -1, 1, 19, 2, 5.167479))
sketch18.addConstraint(Sketcher.Constraint("DistanceY", 19, 2, -1, 1, 13.369481))
sketch18.addConstraint(Sketcher.Constraint("DistanceX", -1, 1, 21, 2, 3.89304))
sketch18.addConstraint(Sketcher.Constraint("DistanceY", 21, 2, -1, 1, 11.898008))
pocket7 = body.newObject("PartDesign::Pocket", "Pocket006")
pocket7.Profile = sketch18
pocket7.Length = 3
pocket7.Reversed = True

doc.recompute()
